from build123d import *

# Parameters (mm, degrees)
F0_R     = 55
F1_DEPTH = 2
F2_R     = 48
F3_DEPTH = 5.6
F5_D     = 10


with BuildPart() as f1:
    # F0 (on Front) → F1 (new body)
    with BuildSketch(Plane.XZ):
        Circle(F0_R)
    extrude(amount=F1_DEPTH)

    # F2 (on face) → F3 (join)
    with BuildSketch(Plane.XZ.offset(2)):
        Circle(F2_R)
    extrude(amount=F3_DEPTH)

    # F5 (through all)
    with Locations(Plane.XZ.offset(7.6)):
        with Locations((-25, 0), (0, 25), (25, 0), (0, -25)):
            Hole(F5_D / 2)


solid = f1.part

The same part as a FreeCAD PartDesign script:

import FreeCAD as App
import Part
import Sketcher
from FreeCAD import Vector
Q = App.Units.Quantity

doc = App.newDocument("Part")
body = doc.addObject("PartDesign::Body", "Body")

sketch1 = body.newObject("Sketcher::SketchObject", "Sketch")
sketch1.AttachmentSupport = (doc.getObject("XZ_Plane"), [""])
sketch1.MapMode = "FlatFace"
sketch1.addGeometry(Part.Circle(Vector(0, 0, 0), Vector(0, 0, 1), 55), False)
sketch1.addConstraint(Sketcher.Constraint("Coincident", 0, 3, -1, 1))
sketch1.addConstraint(Sketcher.Constraint("Diameter", 0, Q("110 mm")))
pad1 = body.newObject("PartDesign::Pad", "Pad")
pad1.Profile = sketch1
pad1.Length = 2

sketch2 = body.newObject("Sketcher::SketchObject", "Sketch001")
sketch2.AttachmentSupport = (doc.getObject("XZ_Plane"), [""])
sketch2.MapMode = "FlatFace"
sketch2.AttachmentOffset = App.Placement(Vector(0, 0, 2), App.Rotation())
sketch2.addGeometry(Part.Circle(Vector(0, 0, 0), Vector(0, 0, 1), 48), False)
sketch2.addConstraint(Sketcher.Constraint("Coincident", 0, 3, -1, 1))
sketch2.addConstraint(Sketcher.Constraint("Diameter", 0, Q("96 mm")))
pad2 = body.newObject("PartDesign::Pad", "Pad001")
pad2.Profile = sketch2
pad2.Length = 5.6

sketch3 = body.newObject("Sketcher::SketchObject", "Sketch002")
sketch3.AttachmentSupport = (doc.getObject("XZ_Plane"), [""])
sketch3.MapMode = "FlatFace"
sketch3.AttachmentOffset = App.Placement(Vector(0, 0, 7.6), App.Rotation())
sketch3.addGeometry(Part.Circle(Vector(-25, 0, 0), Vector(0, 0, 1), 5), False)
sketch3.addGeometry(Part.Circle(Vector(0, 25, 0), Vector(0, 0, 1), 5), False)
sketch3.addGeometry(Part.Circle(Vector(25, 0, 0), Vector(0, 0, 1), 5), False)
sketch3.addGeometry(Part.Circle(Vector(0, -25, 0), Vector(0, 0, 1), 5), False)
sketch3.addConstraint(Sketcher.Constraint("Equal", 0, 1))
sketch3.addConstraint(Sketcher.Constraint("Equal", 1, 2))
sketch3.addConstraint(Sketcher.Constraint("Equal", 2, 3))
sketch3.addConstraint(Sketcher.Constraint("Symmetric", 0, 3, 2, 3, -1, 1))
sketch3.addConstraint(Sketcher.Constraint("Symmetric", 1, 3, 3, 3, -1, 1))
sketch3.addConstraint(Sketcher.Constraint("PointOnObject", 0, 3, -1))
sketch3.addConstraint(Sketcher.Constraint("PointOnObject", 1, 3, -2))
sketch3.addConstraint(Sketcher.Constraint("Diameter", 0, Q("10 mm")))
sketch3.addConstraint(Sketcher.Constraint("DistanceX", 0, 3, -1, 1, Q("25 mm")))
sketch3.addConstraint(Sketcher.Constraint("DistanceY", -1, 1, 1, 3, Q("25 mm")))
doc.recompute()
hole = body.newObject("PartDesign::Hole", "Hole")
hole.Profile = sketch3
hole.ThreadType = "None"
hole.Diameter = 10
hole.DepthType = "ThroughAll"

doc.recompute()
